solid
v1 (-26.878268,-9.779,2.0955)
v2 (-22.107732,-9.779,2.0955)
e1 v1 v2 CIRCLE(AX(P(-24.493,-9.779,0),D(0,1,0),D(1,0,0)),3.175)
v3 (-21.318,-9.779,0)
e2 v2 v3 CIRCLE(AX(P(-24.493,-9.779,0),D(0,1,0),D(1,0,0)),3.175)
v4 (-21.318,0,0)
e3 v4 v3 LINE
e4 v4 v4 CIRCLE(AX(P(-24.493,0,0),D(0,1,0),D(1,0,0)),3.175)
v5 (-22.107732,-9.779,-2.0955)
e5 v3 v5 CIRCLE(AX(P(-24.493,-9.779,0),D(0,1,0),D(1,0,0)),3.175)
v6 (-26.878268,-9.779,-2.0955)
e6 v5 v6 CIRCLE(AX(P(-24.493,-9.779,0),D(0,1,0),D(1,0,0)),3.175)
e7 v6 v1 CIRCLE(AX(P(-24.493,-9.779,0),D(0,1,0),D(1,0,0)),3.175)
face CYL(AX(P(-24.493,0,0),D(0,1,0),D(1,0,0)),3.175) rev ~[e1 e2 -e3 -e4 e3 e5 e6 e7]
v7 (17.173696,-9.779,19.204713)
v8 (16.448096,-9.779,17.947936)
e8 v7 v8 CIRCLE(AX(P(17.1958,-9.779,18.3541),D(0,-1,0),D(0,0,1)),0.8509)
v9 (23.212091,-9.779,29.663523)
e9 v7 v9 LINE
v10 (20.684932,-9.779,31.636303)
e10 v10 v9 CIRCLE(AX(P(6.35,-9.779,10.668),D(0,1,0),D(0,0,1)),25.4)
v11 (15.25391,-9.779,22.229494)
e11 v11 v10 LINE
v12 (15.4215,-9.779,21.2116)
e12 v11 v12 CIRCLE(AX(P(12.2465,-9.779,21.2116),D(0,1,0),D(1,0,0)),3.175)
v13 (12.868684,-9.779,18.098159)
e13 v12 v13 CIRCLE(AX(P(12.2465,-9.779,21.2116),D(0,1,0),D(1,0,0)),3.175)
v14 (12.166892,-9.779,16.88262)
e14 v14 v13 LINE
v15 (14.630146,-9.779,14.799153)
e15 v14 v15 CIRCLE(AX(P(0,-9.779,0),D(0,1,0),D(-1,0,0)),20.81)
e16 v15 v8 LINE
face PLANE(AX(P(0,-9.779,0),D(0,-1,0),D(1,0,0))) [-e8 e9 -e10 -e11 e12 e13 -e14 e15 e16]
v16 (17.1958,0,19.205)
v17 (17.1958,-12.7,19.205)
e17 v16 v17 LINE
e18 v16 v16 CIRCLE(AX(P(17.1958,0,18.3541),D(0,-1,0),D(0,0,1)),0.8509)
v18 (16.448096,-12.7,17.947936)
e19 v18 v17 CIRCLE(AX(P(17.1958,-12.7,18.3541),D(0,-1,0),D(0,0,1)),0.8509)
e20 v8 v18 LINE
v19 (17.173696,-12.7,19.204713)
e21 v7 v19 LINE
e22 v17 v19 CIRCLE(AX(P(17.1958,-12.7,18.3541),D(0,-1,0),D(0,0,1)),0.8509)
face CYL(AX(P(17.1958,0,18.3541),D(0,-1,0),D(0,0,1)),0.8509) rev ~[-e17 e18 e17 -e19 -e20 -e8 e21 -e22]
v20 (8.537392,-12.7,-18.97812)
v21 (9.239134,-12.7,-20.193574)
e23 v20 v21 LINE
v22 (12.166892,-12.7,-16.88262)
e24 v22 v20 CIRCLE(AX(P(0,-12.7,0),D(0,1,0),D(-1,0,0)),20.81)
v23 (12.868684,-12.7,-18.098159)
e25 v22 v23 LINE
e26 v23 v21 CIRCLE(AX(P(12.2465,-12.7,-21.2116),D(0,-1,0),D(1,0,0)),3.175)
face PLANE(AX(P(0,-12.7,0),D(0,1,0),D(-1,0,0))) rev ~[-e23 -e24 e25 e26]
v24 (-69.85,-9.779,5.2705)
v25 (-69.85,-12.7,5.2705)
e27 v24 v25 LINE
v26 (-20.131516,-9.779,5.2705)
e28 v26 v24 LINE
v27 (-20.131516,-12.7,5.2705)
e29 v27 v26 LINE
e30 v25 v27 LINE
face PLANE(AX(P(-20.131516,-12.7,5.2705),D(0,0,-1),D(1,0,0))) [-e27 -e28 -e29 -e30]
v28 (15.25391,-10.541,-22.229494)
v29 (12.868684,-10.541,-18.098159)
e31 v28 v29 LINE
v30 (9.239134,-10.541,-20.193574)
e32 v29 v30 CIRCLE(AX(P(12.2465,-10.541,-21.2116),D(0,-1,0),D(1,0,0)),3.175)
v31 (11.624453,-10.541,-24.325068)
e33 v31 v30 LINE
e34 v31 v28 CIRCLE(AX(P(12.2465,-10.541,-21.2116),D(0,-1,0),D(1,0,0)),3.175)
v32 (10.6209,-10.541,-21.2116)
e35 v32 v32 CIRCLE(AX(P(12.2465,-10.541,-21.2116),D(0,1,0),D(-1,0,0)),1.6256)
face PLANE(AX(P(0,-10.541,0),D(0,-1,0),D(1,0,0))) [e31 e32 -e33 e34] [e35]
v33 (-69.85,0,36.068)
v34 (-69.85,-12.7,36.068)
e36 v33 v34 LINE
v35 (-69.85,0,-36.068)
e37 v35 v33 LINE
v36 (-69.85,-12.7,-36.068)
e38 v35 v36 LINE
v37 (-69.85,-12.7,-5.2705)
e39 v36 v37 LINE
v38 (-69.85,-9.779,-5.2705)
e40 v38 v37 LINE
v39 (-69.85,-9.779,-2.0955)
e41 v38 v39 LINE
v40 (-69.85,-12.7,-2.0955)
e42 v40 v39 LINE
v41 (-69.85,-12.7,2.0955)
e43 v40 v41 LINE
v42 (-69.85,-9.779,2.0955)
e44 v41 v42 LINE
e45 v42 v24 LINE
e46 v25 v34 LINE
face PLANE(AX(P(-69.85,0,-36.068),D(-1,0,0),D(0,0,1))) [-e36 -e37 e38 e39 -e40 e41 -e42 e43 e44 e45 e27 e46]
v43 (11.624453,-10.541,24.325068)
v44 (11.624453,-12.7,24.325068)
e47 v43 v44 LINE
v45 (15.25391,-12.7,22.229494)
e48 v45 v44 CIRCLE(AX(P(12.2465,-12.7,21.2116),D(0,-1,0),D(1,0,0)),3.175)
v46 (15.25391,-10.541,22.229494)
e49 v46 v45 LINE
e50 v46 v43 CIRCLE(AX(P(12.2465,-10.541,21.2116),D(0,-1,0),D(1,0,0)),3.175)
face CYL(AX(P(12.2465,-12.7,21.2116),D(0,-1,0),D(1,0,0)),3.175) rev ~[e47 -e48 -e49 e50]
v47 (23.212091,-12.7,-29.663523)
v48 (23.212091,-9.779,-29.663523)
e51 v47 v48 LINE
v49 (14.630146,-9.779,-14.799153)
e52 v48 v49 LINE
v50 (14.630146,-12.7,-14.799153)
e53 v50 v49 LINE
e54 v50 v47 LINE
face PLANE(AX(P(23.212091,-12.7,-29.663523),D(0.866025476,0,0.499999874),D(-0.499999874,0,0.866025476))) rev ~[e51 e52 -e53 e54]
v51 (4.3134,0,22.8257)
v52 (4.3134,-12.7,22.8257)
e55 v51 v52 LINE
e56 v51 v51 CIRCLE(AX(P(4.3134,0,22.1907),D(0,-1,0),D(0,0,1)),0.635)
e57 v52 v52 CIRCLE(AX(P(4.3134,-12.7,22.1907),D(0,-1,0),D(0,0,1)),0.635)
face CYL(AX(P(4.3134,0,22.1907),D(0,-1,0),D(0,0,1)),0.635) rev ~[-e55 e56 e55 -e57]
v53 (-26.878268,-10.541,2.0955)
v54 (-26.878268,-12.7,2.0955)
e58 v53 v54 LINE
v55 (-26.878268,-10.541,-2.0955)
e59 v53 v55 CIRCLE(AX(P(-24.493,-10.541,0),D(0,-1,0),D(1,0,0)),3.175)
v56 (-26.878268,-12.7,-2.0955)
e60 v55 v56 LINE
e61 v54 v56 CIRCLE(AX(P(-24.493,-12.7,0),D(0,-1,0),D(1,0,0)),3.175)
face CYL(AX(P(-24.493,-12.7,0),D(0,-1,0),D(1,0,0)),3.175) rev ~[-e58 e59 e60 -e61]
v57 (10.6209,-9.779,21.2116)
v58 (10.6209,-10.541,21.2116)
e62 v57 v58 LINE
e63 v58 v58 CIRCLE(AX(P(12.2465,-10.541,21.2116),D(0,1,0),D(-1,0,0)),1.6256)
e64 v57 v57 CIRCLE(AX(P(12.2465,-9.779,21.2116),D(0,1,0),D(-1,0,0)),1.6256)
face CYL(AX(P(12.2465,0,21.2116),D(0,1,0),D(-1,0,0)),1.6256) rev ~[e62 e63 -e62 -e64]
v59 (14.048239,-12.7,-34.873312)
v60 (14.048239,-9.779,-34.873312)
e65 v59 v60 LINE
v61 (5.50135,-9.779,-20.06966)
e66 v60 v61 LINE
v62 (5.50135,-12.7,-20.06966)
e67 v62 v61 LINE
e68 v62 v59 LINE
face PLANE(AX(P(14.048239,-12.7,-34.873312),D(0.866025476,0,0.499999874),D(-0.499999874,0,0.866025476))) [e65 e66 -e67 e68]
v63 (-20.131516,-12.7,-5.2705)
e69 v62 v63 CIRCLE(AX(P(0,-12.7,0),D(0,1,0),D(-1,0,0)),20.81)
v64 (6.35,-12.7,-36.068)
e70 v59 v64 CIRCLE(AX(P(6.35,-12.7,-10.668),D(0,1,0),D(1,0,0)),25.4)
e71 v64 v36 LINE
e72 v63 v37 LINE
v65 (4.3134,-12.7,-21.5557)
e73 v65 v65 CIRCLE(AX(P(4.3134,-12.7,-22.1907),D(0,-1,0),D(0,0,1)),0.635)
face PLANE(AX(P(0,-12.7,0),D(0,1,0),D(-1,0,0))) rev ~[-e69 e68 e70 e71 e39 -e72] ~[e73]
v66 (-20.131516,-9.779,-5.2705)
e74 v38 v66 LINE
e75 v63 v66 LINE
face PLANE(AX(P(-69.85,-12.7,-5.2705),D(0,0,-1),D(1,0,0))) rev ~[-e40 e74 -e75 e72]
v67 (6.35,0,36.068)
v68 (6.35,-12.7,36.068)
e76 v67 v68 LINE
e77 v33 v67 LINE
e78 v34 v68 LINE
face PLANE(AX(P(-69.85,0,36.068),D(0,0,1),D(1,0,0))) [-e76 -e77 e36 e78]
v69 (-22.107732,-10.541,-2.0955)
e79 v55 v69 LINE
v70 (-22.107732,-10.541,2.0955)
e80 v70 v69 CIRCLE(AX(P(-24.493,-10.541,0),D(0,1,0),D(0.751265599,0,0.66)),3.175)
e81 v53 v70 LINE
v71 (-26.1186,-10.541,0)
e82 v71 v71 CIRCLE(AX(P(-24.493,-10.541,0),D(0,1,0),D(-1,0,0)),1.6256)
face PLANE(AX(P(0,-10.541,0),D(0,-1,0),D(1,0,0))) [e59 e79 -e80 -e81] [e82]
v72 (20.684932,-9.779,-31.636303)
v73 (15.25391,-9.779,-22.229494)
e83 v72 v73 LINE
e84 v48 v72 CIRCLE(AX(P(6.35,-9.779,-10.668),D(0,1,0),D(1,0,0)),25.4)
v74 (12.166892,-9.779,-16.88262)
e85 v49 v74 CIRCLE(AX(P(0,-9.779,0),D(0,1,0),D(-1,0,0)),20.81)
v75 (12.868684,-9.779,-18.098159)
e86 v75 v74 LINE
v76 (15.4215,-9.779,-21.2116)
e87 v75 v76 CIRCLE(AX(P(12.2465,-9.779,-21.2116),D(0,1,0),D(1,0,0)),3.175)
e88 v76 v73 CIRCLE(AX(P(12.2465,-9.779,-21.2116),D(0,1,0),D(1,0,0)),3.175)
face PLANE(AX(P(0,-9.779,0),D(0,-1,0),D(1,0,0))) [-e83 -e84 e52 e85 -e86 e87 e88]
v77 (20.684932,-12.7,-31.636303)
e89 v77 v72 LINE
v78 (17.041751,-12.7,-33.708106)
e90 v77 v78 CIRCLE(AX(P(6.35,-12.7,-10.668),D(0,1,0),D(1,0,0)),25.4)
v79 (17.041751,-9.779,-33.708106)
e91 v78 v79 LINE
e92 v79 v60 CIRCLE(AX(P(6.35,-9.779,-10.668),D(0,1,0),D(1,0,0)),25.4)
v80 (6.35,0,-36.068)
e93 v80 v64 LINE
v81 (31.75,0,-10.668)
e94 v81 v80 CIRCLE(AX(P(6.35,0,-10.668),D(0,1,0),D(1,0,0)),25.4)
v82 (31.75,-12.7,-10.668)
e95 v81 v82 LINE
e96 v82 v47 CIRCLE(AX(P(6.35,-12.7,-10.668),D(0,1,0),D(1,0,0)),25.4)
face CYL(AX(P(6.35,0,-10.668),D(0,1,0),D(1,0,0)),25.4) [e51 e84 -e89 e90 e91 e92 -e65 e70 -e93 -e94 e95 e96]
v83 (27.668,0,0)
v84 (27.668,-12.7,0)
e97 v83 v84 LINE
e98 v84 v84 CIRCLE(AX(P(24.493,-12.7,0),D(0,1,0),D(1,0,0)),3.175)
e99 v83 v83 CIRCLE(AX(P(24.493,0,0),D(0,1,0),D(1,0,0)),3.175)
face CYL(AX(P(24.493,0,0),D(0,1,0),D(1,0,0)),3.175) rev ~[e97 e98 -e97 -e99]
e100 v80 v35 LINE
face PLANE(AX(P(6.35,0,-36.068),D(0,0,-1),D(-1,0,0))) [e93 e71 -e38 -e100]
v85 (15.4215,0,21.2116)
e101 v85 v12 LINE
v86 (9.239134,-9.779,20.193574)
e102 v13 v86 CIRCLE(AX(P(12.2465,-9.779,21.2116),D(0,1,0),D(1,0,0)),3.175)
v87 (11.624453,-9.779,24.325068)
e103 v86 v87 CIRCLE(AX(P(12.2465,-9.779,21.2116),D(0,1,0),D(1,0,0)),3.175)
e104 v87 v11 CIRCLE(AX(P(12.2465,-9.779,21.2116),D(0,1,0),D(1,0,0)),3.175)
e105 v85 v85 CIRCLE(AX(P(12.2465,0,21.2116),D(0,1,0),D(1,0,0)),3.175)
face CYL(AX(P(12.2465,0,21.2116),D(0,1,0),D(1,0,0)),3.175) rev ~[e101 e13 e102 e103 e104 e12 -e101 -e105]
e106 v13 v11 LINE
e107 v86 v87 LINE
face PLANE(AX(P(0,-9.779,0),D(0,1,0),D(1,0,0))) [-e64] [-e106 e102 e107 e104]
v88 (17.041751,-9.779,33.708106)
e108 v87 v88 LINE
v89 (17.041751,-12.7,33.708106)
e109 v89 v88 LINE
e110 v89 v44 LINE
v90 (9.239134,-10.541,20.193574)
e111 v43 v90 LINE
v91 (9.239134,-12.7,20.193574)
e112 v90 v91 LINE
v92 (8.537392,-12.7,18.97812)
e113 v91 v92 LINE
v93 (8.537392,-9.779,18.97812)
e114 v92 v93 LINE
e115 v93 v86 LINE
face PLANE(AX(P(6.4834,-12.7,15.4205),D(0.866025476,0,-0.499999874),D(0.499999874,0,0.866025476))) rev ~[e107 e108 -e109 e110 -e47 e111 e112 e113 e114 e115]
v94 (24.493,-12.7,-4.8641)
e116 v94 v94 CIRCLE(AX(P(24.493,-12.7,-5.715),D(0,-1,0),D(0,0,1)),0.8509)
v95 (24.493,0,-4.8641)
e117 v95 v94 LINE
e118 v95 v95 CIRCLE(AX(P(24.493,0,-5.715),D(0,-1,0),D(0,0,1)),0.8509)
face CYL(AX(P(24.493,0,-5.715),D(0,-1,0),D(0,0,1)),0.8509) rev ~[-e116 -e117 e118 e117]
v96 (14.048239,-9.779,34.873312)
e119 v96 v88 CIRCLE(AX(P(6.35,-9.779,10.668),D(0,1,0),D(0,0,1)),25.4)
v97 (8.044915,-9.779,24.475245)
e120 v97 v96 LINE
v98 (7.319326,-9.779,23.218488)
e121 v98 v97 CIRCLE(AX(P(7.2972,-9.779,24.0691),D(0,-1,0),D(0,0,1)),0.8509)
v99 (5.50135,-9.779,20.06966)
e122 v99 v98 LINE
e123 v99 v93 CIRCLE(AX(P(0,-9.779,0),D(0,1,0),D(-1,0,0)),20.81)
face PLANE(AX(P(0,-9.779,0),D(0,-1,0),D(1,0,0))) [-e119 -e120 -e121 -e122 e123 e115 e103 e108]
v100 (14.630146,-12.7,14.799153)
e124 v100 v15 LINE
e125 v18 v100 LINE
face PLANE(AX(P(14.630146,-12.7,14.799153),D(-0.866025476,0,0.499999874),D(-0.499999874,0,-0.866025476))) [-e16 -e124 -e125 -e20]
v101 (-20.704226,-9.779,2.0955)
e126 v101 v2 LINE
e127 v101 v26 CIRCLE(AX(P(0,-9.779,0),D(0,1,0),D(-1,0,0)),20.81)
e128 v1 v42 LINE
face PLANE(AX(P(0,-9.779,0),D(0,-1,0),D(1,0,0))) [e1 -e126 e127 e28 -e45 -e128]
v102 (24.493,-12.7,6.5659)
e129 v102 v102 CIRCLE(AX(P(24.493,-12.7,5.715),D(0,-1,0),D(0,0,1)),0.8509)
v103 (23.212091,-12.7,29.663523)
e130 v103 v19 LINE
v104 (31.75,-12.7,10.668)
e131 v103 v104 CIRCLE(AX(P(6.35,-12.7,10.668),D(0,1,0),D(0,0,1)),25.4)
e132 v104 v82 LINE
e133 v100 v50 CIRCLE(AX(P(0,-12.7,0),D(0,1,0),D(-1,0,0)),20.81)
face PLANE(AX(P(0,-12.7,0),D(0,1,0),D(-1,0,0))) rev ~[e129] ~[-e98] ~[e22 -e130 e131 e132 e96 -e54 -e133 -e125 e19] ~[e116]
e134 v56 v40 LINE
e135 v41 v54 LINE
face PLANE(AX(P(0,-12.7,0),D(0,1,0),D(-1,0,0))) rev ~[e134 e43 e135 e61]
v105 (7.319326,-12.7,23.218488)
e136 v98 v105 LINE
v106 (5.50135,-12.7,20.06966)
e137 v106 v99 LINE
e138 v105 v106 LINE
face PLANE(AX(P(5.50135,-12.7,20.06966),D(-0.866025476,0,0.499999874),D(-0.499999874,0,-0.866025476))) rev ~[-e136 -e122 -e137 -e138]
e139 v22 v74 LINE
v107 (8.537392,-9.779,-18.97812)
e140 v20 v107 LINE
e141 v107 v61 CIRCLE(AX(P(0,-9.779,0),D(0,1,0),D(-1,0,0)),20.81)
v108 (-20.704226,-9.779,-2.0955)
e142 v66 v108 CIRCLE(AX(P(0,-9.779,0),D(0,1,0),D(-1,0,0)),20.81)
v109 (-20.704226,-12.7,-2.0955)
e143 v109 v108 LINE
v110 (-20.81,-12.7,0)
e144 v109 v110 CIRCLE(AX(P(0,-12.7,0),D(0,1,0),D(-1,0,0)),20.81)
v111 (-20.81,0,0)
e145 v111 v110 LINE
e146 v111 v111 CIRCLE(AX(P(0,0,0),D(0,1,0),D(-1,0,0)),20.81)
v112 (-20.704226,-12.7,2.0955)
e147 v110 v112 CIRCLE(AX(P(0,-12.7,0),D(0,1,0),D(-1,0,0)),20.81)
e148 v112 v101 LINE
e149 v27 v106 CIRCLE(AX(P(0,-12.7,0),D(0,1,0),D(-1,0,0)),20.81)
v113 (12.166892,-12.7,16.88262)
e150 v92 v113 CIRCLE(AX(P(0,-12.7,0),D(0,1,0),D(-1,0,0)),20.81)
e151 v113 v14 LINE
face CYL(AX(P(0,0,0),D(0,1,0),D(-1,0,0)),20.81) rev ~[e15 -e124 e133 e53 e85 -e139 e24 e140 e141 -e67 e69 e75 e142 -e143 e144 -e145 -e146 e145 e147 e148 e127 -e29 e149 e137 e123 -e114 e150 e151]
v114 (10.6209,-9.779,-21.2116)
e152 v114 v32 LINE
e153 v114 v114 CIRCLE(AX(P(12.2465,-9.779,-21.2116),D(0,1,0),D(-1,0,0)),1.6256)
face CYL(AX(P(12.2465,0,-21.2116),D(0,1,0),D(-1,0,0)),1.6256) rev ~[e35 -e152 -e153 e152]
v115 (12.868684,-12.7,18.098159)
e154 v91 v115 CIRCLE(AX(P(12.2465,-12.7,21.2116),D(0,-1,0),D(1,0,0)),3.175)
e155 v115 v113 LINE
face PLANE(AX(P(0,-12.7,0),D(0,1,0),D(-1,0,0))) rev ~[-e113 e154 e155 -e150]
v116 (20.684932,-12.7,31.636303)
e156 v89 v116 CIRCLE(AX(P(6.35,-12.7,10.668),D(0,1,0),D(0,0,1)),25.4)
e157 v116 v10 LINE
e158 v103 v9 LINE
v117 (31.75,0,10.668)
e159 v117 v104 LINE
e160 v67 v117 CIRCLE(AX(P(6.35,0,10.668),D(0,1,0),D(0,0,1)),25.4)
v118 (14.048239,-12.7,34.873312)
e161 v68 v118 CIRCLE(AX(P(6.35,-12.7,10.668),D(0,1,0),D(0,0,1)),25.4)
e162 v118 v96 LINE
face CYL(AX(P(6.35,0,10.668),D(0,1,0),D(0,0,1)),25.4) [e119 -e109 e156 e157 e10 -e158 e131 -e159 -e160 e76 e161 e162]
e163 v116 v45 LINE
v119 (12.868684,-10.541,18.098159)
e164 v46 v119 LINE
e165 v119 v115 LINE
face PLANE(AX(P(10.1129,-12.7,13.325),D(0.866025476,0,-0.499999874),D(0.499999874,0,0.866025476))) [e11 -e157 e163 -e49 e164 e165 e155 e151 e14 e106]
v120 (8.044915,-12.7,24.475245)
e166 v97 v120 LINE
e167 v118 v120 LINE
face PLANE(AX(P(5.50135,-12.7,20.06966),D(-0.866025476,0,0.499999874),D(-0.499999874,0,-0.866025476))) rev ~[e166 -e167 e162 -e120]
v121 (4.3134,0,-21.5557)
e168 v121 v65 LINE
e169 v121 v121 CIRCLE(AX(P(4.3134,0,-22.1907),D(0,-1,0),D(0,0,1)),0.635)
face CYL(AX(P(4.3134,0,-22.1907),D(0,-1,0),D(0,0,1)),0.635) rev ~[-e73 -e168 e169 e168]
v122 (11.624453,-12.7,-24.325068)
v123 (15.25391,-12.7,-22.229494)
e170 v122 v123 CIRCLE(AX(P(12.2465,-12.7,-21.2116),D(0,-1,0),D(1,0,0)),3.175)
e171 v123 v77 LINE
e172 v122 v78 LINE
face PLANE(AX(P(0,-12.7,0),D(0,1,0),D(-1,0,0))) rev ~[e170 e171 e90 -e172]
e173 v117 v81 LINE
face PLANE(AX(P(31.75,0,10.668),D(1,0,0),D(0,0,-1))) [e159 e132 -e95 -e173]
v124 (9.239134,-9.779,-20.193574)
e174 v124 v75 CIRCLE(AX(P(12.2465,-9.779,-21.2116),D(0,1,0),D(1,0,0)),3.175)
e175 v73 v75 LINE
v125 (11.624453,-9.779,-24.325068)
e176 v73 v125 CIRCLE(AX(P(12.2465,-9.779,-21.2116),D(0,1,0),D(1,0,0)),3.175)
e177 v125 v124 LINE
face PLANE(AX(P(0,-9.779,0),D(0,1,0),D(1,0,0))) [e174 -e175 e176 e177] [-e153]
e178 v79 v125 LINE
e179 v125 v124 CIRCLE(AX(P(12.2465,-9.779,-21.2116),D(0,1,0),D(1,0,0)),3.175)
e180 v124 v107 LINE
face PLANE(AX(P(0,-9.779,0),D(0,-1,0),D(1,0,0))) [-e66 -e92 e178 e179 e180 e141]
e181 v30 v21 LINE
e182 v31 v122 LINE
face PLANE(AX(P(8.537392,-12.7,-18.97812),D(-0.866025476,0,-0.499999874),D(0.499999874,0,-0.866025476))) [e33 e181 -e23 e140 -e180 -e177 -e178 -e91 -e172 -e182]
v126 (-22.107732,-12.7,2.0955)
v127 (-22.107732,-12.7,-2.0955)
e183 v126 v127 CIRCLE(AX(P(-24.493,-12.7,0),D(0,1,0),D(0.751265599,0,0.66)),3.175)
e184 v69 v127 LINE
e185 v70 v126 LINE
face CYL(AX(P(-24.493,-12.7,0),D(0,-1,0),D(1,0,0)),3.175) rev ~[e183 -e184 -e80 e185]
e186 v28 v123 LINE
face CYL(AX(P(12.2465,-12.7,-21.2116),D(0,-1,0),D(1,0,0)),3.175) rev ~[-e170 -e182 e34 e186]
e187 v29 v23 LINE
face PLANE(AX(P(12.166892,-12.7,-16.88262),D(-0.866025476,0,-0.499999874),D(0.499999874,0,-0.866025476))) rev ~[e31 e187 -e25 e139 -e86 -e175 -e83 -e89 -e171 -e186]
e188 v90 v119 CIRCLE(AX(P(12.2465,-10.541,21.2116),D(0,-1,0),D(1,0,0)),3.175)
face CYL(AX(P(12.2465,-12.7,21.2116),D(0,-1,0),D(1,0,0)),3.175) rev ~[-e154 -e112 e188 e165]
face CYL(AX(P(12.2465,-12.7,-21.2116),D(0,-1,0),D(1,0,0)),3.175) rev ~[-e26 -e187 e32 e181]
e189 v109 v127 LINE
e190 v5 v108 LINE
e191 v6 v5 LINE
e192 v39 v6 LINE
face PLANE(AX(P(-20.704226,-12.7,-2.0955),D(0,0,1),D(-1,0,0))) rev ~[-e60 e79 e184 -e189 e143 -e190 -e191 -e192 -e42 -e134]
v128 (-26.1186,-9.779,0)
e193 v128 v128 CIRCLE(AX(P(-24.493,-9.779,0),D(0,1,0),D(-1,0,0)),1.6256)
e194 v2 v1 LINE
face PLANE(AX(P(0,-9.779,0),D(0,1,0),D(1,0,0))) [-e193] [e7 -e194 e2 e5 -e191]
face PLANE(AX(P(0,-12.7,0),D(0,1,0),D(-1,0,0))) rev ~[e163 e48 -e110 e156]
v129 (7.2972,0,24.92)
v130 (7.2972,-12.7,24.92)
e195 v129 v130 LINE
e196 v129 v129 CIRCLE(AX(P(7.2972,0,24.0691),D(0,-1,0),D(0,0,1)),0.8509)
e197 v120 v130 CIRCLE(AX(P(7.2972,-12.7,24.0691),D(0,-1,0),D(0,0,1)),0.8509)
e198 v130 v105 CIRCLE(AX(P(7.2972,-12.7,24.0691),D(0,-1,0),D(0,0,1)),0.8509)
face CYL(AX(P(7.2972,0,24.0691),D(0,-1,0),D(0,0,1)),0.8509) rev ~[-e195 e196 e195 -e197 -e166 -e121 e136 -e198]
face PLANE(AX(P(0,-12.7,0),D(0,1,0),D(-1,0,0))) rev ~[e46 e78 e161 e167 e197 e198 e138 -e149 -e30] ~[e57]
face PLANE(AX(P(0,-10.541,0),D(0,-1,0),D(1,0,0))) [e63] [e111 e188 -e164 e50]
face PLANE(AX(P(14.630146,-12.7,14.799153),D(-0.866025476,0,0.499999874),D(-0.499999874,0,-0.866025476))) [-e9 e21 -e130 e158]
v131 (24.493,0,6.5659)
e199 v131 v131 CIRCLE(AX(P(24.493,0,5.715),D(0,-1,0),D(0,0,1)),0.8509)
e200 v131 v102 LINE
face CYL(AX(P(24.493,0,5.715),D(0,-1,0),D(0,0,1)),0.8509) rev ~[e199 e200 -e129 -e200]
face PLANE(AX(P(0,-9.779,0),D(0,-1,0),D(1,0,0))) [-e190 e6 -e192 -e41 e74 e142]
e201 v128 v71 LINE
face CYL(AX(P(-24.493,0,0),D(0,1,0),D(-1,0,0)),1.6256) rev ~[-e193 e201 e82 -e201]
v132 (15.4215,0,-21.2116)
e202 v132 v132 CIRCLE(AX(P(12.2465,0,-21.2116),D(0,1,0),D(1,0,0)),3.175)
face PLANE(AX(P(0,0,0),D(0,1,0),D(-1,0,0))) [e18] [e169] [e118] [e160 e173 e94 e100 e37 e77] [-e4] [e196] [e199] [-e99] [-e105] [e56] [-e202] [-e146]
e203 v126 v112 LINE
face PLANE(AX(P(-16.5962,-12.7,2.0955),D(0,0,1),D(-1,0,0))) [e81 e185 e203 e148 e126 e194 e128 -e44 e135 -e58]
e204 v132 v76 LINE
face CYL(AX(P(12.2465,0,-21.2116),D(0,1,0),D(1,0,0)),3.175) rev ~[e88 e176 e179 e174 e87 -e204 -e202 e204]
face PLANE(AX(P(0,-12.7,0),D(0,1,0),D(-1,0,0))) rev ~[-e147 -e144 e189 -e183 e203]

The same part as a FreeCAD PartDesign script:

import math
import FreeCAD as App
import Part
import Sketcher

V = App.Vector
Q = App.Units.Quantity

doc = App.newDocument("Part")
body = doc.addObject("PartDesign::Body", "Body")

# Sketch on XZ plane
sketch1 = body.newObject("Sketcher::SketchObject", "Sketch")
sketch1.AttachmentSupport = (doc.getObject("XZ_Plane"), [""])
sketch1.MapMode = "FlatFace"
sketch1.addGeometry(Part.ArcOfCircle(Part.Circle(V(6.3, -10.7, 0), V(0, 0, 1), 25.4), math.radians(-90), math.radians(0)), False)
sketch1.addGeometry(Part.LineSegment(V(6.3, -36.1, 0), V(-69.8, -36.1, 0)), False)
sketch1.addGeometry(Part.LineSegment(V(-69.8, -36.1, 0), V(-69.8, 36.1, 0)), False)
sketch1.addGeometry(Part.LineSegment(V(-69.8, 36.1, 0), V(6.3, 36.1, 0)), False)
sketch1.addGeometry(Part.ArcOfCircle(Part.Circle(V(6.3, 10.7, 0), V(0, 0, 1), 25.4), math.radians(0), math.radians(90)), False)
sketch1.addGeometry(Part.LineSegment(V(31.8, 10.7, 0), V(31.8, -10.7, 0)), False)
sketch1.addGeometry(Part.Circle(V(12.2, -21.2, 0), V(0, 0, 1), 1.6), False)
sketch1.addGeometry(Part.Circle(V(0, 0, 0), V(0, 0, 1), 20.8), False)
sketch1.addGeometry(Part.Circle(V(12.2, 21.2, 0), V(0, 0, 1), 1.6), False)
sketch1.addGeometry(Part.Circle(V(-24.5, 0, 0), V(0, 0, 1), 1.6), False)
sketch1.addConstraint(Sketcher.Constraint("Tangent", 0, 1, 1, 1))
sketch1.addConstraint(Sketcher.Constraint("Coincident", 1, 2, 2, 1))
sketch1.addConstraint(Sketcher.Constraint("Coincident", 2, 2, 3, 1))
sketch1.addConstraint(Sketcher.Constraint("Tangent", 3, 2, 4, 2))
sketch1.addConstraint(Sketcher.Constraint("Tangent", 4, 1, 5, 1))
sketch1.addConstraint(Sketcher.Constraint("Tangent", 5, 2, 0, 2))
sketch1.addConstraint(Sketcher.Constraint("Horizontal", 1))
sketch1.addConstraint(Sketcher.Constraint("Vertical", 2))
sketch1.addConstraint(Sketcher.Constraint("Horizontal", 3))
sketch1.addConstraint(Sketcher.Constraint("Vertical", 5))
sketch1.addConstraint(Sketcher.Constraint("Coincident", 7, 3, -1, 1))
sketch1.addConstraint(Sketcher.Constraint("Equal", 0, 4))
sketch1.addConstraint(Sketcher.Constraint("Equal", 6, 8))
sketch1.addConstraint(Sketcher.Constraint("Equal", 8, 9))
sketch1.addConstraint(Sketcher.Constraint("Symmetric", 6, 3, 8, 3, -1))
sketch1.addConstraint(Sketcher.Constraint("PointOnObject", 9, 3, -1))
sketch1.addConstraint(Sketcher.Constraint("Radius", 0, Q("1 in")))
sketch1.addConstraint(Sketcher.Constraint("Diameter", 6, Q("0.128 in")))
sketch1.addConstraint(Sketcher.Constraint("DistanceY", 2, 1, 2, 2, Q("2.84 in")))
sketch1.addConstraint(Sketcher.Constraint("Diameter", 7, 41.62))
sketch1.addConstraint(Sketcher.Constraint("DistanceX", 1, 2, 1, 1, Q("3 in")))
sketch1.addConstraint(Sketcher.Constraint("DistanceX", -1, 1, 0, 3, Q("0.25 in")))
sketch1.addConstraint(Sketcher.Constraint("DistanceX", 9, 3, -1, 1, Q("0.9643 in")))
sketch1.addConstraint(Sketcher.Constraint("DistanceY", 0, 3, -1, 1, Q("0.42 in")))
sketch1.addConstraint(Sketcher.Constraint("DistanceY", 6, 3, -1, 1, Q("0.8351 in")))
sketch1.addConstraint(Sketcher.Constraint("DistanceX", -1, 1, 6, 3, 12.2465))
pad1 = body.newObject("PartDesign::Pad", "Pad")
pad1.Profile = sketch1
pad1.Length = Q("0.5 in")

# Sketch on XZ plane
sketch2 = body.newObject("Sketcher::SketchObject", "Sketch001")
sketch2.AttachmentSupport = (doc.getObject("XZ_Plane"), [""])
sketch2.MapMode = "FlatFace"
sketch2.AttachmentOffset = App.Placement(V(0, 0, 0.5 * 25.4), App.Rotation())
sketch2.addGeometry(Part.LineSegment(V(12.9, 11.7, 0), V(43, 64, 0)), False)
sketch2.addGeometry(Part.ArcOfCircle(Part.Circle(V(41.7, 64.8, 0), V(0, 0, 1), 1.6), math.radians(-30), math.radians(150)), False)
sketch2.addGeometry(Part.LineSegment(V(40.3, 65.6, 0), V(10.1, 13.3, 0)), False)
sketch2.addGeometry(Part.ArcOfCircle(Part.Circle(V(11.5, 12.5, 0), V(0, 0, 1), 1.6), math.radians(150), math.radians(330)), False)
sketch2.addGeometry(Part.ArcOfCircle(Part.Circle(V(11.5, -12.5, 0), V(0, 0, 1), 1.6), math.radians(30), math.radians(210)), False)
sketch2.addGeometry(Part.LineSegment(V(10.1, -13.3, 0), V(40.3, -65.6, 0)), False)
sketch2.addGeometry(Part.ArcOfCircle(Part.Circle(V(41.7, -64.8, 0), V(0, 0, 1), 1.6), math.radians(-150), math.radians(30)), False)
sketch2.addGeometry(Part.LineSegment(V(43, -64, 0), V(12.9, -11.7, 0)), False)
sketch2.addGeometry(Part.LineSegment(V(6.5, 15.4, 0), V(36.6, 67.7, 0)), False)
sketch2.addGeometry(Part.ArcOfCircle(Part.Circle(V(35.3, 68.5, 0), V(0, 0, 1), 1.6), math.radians(-30), math.radians(150)), False)
sketch2.addGeometry(Part.LineSegment(V(33.9, 69.3, 0), V(3.7, 17, 0)), False)
sketch2.addGeometry(Part.ArcOfCircle(Part.Circle(V(5.1, 16.2, 0), V(0, 0, 1), 1.6), math.radians(150), math.radians(330)), False)
sketch2.addGeometry(Part.ArcOfCircle(Part.Circle(V(5.1, -16.2, 0), V(0, 0, 1), 1.6), math.radians(30), math.radians(210)), False)
sketch2.addGeometry(Part.LineSegment(V(3.7, -17, 0), V(33.9, -69.3, 0)), False)
sketch2.addGeometry(Part.ArcOfCircle(Part.Circle(V(35.3, -68.5, 0), V(0, 0, 1), 1.6), math.radians(-150), math.radians(30)), False)
sketch2.addGeometry(Part.LineSegment(V(36.6, -67.7, 0), V(6.5, -15.4, 0)), False)
sketch2.addGeometry(Part.LineSegment(V(-16.6, 5.3, 0), V(-76.9, 5.3, 0)), False)
sketch2.addGeometry(Part.ArcOfCircle(Part.Circle(V(-76.9, 3.7, 0), V(0, 0, 1), 1.6), math.radians(90), math.radians(270)), False)
sketch2.addGeometry(Part.LineSegment(V(-76.9, 2.1, 0), V(-16.6, 2.1, 0)), False)
sketch2.addGeometry(Part.ArcOfCircle(Part.Circle(V(-16.6, 3.7, 0), V(0, 0, 1), 1.6), math.radians(-90), math.radians(90)), False)
sketch2.addGeometry(Part.ArcOfCircle(Part.Circle(V(-16.6, -3.7, 0), V(0, 0, 1), 1.6), math.radians(-90), math.radians(90)), False)
sketch2.addGeometry(Part.LineSegment(V(-16.6, -2.1, 0), V(-76.9, -2.1, 0)), False)
sketch2.addGeometry(Part.ArcOfCircle(Part.Circle(V(-76.9, -3.7, 0), V(0, 0, 1), 1.6), math.radians(90), math.radians(270)), False)
sketch2.addGeometry(Part.LineSegment(V(-76.9, -5.3, 0), V(-16.6, -5.3, 0)), False)
sketch2.addConstraint(Sketcher.Constraint("Tangent", 0, 2, 1, 1))
sketch2.addConstraint(Sketcher.Constraint("Tangent", 1, 2, 2, 1))
sketch2.addConstraint(Sketcher.Constraint("Tangent", 2, 2, 3, 1))
sketch2.addConstraint(Sketcher.Constraint("Tangent", 3, 2, 0, 1))
sketch2.addConstraint(Sketcher.Constraint("Tangent", 4, 2, 5, 1))
sketch2.addConstraint(Sketcher.Constraint("Tangent", 5, 2, 6, 1))
sketch2.addConstraint(Sketcher.Constraint("Tangent", 6, 2, 7, 1))
sketch2.addConstraint(Sketcher.Constraint("Tangent", 7, 2, 4, 1))
sketch2.addConstraint(Sketcher.Constraint("Tangent", 8, 2, 9, 1))
sketch2.addConstraint(Sketcher.Constraint("Tangent", 9, 2, 10, 1))
sketch2.addConstraint(Sketcher.Constraint("Tangent", 10, 2, 11, 1))
sketch2.addConstraint(Sketcher.Constraint("Tangent", 11, 2, 8, 1))
sketch2.addConstraint(Sketcher.Constraint("Tangent", 12, 2, 13, 1))
sketch2.addConstraint(Sketcher.Constraint("Tangent", 13, 2, 14, 1))
sketch2.addConstraint(Sketcher.Constraint("Tangent", 14, 2, 15, 1))
sketch2.addConstraint(Sketcher.Constraint("Tangent", 15, 2, 12, 1))
sketch2.addConstraint(Sketcher.Constraint("Tangent", 16, 2, 17, 1))
sketch2.addConstraint(Sketcher.Constraint("Tangent", 17, 2, 18, 1))
sketch2.addConstraint(Sketcher.Constraint("Tangent", 18, 2, 19, 1))
sketch2.addConstraint(Sketcher.Constraint("Tangent", 19, 2, 16, 1))
sketch2.addConstraint(Sketcher.Constraint("Tangent", 20, 2, 21, 1))
sketch2.addConstraint(Sketcher.Constraint("Tangent", 21, 2, 22, 1))
sketch2.addConstraint(Sketcher.Constraint("Tangent", 22, 2, 23, 1))
sketch2.addConstraint(Sketcher.Constraint("Tangent", 23, 2, 20, 1))
sketch2.addConstraint(Sketcher.Constraint("Horizontal", 16))
sketch2.addConstraint(Sketcher.Constraint("Horizontal", 18))
sketch2.addConstraint(Sketcher.Constraint("Horizontal", 21))
sketch2.addConstraint(Sketcher.Constraint("Horizontal", 23))
sketch2.addConstraint(Sketcher.Constraint("Equal", 1, 3))
sketch2.addConstraint(Sketcher.Constraint("Equal", 3, 4))
sketch2.addConstraint(Sketcher.Constraint("Equal", 4, 6))
sketch2.addConstraint(Sketcher.Constraint("Equal", 6, 9))
sketch2.addConstraint(Sketcher.Constraint("Equal", 9, 11))
sketch2.addConstraint(Sketcher.Constraint("Equal", 11, 12))
sketch2.addConstraint(Sketcher.Constraint("Equal", 12, 14))
sketch2.addConstraint(Sketcher.Constraint("Equal", 14, 17))
sketch2.addConstraint(Sketcher.Constraint("Equal", 19, 20))
sketch2.addConstraint(Sketcher.Constraint("Symmetric", 3, 3, 4, 3, -1))
sketch2.addConstraint(Sketcher.Constraint("Symmetric", 1, 3, 6, 3, -1))
sketch2.addConstraint(Sketcher.Constraint("Symmetric", 11, 3, 12, 3, -1))
sketch2.addConstraint(Sketcher.Constraint("Symmetric", 9, 3, 14, 3, -1))
sketch2.addConstraint(Sketcher.Constraint("Symmetric", 19, 3, 20, 3, -1))
sketch2.addConstraint(Sketcher.Constraint("Parallel", 2, 8))
sketch2.addConstraint(Sketcher.Constraint("Vertical", 17, 3, 22, 3))
sketch2.addConstraint(Sketcher.Constraint("Equal", 7, 8))
sketch2.addConstraint(Sketcher.Constraint("Radius", 1, Q("0.0625 in")))
sketch2.addConstraint(Sketcher.Constraint("DistanceY", -1, 1, 17, 3, Q("0.145 in")))
sketch2.addConstraint(Sketcher.Constraint("Angle", 0, Q("60 deg")))
sketch2.addConstraint(Sketcher.Constraint("DistanceY", 1, 3, 9, 3, Q("0.145 in")))
sketch2.addConstraint(Sketcher.Constraint("DistanceX", 16, 2, 16, 1, Q("2.375 in")))
sketch2.addConstraint(Sketcher.Constraint("Distance", 0, Q("2.375 in")))
sketch2.addConstraint(Sketcher.Constraint("DistanceX", -1, 1, 10, 2, Q("0.147 in")))
sketch2.addConstraint(Sketcher.Constraint("DistanceX", 17, 3, -1, 1, Q("3.0284 in")))
sketch2.addConstraint(Sketcher.Constraint("DistanceX", -1, 1, 0, 2, Q("1.6939 in")))
sketch2.addConstraint(Sketcher.Constraint("DistanceY", -1, 1, 2, 2, Q("0.5246 in")))
pocket1 = body.newObject("PartDesign::Pocket", "Pocket")
pocket1.Profile = sketch2
pocket1.Length = Q("0.115 in")

# Sketch on XZ plane
sketch3 = body.newObject("Sketcher::SketchObject", "Sketch002")
sketch3.AttachmentSupport = (doc.getObject("XZ_Plane"), [""])
sketch3.MapMode = "FlatFace"
sketch3.addGeometry(Part.Circle(V(12.2, 21.2, 0), V(0, 0, 1), 3.2), False)
sketch3.addGeometry(Part.Circle(V(12.2, -21.2, 0), V(0, 0, 1), 3.2), False)
sketch3.addGeometry(Part.Circle(V(-24.5, 0, 0), V(0, 0, 1), 3.2), False)
sketch3.addConstraint(Sketcher.Constraint("Equal", 0, 1))
sketch3.addConstraint(Sketcher.Constraint("Equal", 1, 2))
sketch3.addConstraint(Sketcher.Constraint("Symmetric", 0, 3, 1, 3, -1))
sketch3.addConstraint(Sketcher.Constraint("PointOnObject", 2, 3, -1))
sketch3.addConstraint(Sketcher.Constraint("Diameter", 0, Q("0.25 in")))
sketch3.addConstraint(Sketcher.Constraint("DistanceY", -1, 1, 0, 3, Q("0.8351 in")))
sketch3.addConstraint(Sketcher.Constraint("DistanceX", 2, 3, -1, 1, Q("0.9643 in")))
sketch3.addConstraint(Sketcher.Constraint("DistanceX", -1, 1, 0, 3, 12.2465))
pocket2 = body.newObject("PartDesign::Pocket", "Pocket001")
pocket2.Profile = sketch3
pocket2.Length = Q("0.385 in")
pocket2.Reversed = True

# Sketch on XZ plane
sketch4 = body.newObject("Sketcher::SketchObject", "Sketch003")
sketch4.AttachmentSupport = (doc.getObject("XZ_Plane"), [""])
sketch4.MapMode = "FlatFace"
sketch4.AttachmentOffset = App.Placement(V(0, 0, 0.5 * 25.4), App.Rotation())
sketch4.addGeometry(Part.Circle(V(12.2, 21.2, 0), V(0, 0, 1), 3.2), False)
sketch4.addGeometry(Part.Circle(V(-24.5, 0, 0), V(0, 0, 1), 3.2), False)
sketch4.addGeometry(Part.Circle(V(12.2, -21.2, 0), V(0, 0, 1), 3.2), False)
sketch4.addConstraint(Sketcher.Constraint("Equal", 0, 1))
sketch4.addConstraint(Sketcher.Constraint("Equal", 1, 2))
sketch4.addConstraint(Sketcher.Constraint("Symmetric", 0, 3, 2, 3, -1))
sketch4.addConstraint(Sketcher.Constraint("PointOnObject", 1, 3, -1))
sketch4.addConstraint(Sketcher.Constraint("Diameter", 0, Q("0.25 in")))
sketch4.addConstraint(Sketcher.Constraint("DistanceY", -1, 1, 0, 3, Q("0.8351 in")))
sketch4.addConstraint(Sketcher.Constraint("DistanceX", 1, 3, -1, 1, Q("0.9643 in")))
sketch4.addConstraint(Sketcher.Constraint("DistanceX", -1, 1, 0, 3, 12.2465))
pocket3 = body.newObject("PartDesign::Pocket", "Pocket002")
pocket3.Profile = sketch4
pocket3.Length = Q("0.085 in")

# Sketch on XZ plane
sketch5 = body.newObject("Sketcher::SketchObject", "Sketch004")
sketch5.AttachmentSupport = (doc.getObject("XZ_Plane"), [""])
sketch5.MapMode = "FlatFace"
sketch5.addGeometry(Part.Circle(V(4.3, 22.2, 0), V(0, 0, 1), 0.6), False)
sketch5.addGeometry(Part.Circle(V(4.3, -22.2, 0), V(0, 0, 1), 0.6), False)
sketch5.addConstraint(Sketcher.Constraint("Equal", 0, 1))
sketch5.addConstraint(Sketcher.Constraint("Symmetric", 0, 3, 1, 3, -1))
sketch5.addConstraint(Sketcher.Constraint("Diameter", 0, Q("0.05 in")))
sketch5.addConstraint(Sketcher.Constraint("DistanceY", 1, 3, 0, 3, Q("1.7473 in")))
sketch5.addConstraint(Sketcher.Constraint("DistanceX", -1, 1, 0, 3, 4.3134))
doc.recompute()
hole = body.newObject("PartDesign::Hole", "Hole")
hole.Profile = sketch5
hole.ThreadType = "None"
hole.Diameter = Q("0.05 in")
hole.DepthType = "Dimension"
hole.Depth = Q("1 in")
hole.DrillPoint = "Angled"
hole.DrillPointAngle = 118
hole.Reversed = True

# Sketch on XZ plane
sketch6 = body.newObject("Sketcher::SketchObject", "Sketch005")
sketch6.AttachmentSupport = (doc.getObject("XZ_Plane"), [""])
sketch6.MapMode = "FlatFace"
sketch6.addGeometry(Part.Circle(V(17.2, 18.4, 0), V(0, 0, 1), 0.9), False)
sketch6.addGeometry(Part.Circle(V(7.3, 24.1, 0), V(0, 0, 1), 0.9), False)
sketch6.addConstraint(Sketcher.Constraint("Equal", 0, 1))
sketch6.addConstraint(Sketcher.Constraint("Diameter", 0, Q("0.067 in")))
sketch6.addConstraint(Sketcher.Constraint("DistanceX", -1, 1, 0, 3, Q("0.677 in")))
sketch6.addConstraint(Sketcher.Constraint("DistanceY", 0, 3, 1, 3, Q("0.225 in")))
sketch6.addConstraint(Sketcher.Constraint("DistanceY", -1, 1, 0, 3, Q("0.7226 in")))
sketch6.addConstraint(Sketcher.Constraint("DistanceX", -1, 1, 1, 3, Q("0.2873 in")))
doc.recompute()
hole2 = body.newObject("PartDesign::Hole", "Hole001")
hole2.Profile = sketch6
hole2.ThreadType = "None"
hole2.Diameter = Q("0.067 in")
hole2.DepthType = "Dimension"
hole2.Depth = Q("0.5 in")
hole2.DrillPoint = "Angled"
hole2.DrillPointAngle = 118
hole2.Reversed = True

# Sketch on XZ plane
sketch7 = body.newObject("Sketcher::SketchObject", "Sketch006")
sketch7.AttachmentSupport = (doc.getObject("XZ_Plane"), [""])
sketch7.MapMode = "FlatFace"
sketch7.addGeometry(Part.Circle(V(24.5, 0, 0), V(0, 0, 1), 3.2), False)
sketch7.addConstraint(Sketcher.Constraint("PointOnObject", 0, 3, -1))
sketch7.addConstraint(Sketcher.Constraint("Diameter", 0, Q("0.25 in")))
sketch7.addConstraint(Sketcher.Constraint("DistanceX", -1, 1, 0, 3, Q("0.9643 in")))
pocket4 = body.newObject("PartDesign::Pocket", "Pocket003")
pocket4.Profile = sketch7
pocket4.Length = Q("1 in")
pocket4.Reversed = True

# Sketch on XZ plane
sketch8 = body.newObject("Sketcher::SketchObject", "Sketch007")
sketch8.AttachmentSupport = (doc.getObject("XZ_Plane"), [""])
sketch8.MapMode = "FlatFace"
sketch8.addGeometry(Part.Circle(V(24.5, 5.7, 0), V(0, 0, 1), 0.9), False)
sketch8.addGeometry(Part.Circle(V(24.5, -5.7, 0), V(0, 0, 1), 0.9), False)
sketch8.addConstraint(Sketcher.Constraint("Equal", 0, 1))
sketch8.addConstraint(Sketcher.Constraint("Symmetric", 0, 3, 1, 3, -1))
sketch8.addConstraint(Sketcher.Constraint("Diameter", 0, Q("0.067 in")))
sketch8.addConstraint(Sketcher.Constraint("DistanceY", 1, 3, 0, 3, Q("0.45 in")))
sketch8.addConstraint(Sketcher.Constraint("DistanceX", -1, 1, 0, 3, Q("0.9643 in")))
doc.recompute()
hole3 = body.newObject("PartDesign::Hole", "Hole002")
hole3.Profile = sketch8
hole3.ThreadType = "None"
hole3.Diameter = Q("0.067 in")
hole3.DepthType = "Dimension"
hole3.Depth = Q("0.5 in")
hole3.DrillPoint = "Angled"
hole3.DrillPointAngle = 118
hole3.Reversed = True

doc.recompute()
